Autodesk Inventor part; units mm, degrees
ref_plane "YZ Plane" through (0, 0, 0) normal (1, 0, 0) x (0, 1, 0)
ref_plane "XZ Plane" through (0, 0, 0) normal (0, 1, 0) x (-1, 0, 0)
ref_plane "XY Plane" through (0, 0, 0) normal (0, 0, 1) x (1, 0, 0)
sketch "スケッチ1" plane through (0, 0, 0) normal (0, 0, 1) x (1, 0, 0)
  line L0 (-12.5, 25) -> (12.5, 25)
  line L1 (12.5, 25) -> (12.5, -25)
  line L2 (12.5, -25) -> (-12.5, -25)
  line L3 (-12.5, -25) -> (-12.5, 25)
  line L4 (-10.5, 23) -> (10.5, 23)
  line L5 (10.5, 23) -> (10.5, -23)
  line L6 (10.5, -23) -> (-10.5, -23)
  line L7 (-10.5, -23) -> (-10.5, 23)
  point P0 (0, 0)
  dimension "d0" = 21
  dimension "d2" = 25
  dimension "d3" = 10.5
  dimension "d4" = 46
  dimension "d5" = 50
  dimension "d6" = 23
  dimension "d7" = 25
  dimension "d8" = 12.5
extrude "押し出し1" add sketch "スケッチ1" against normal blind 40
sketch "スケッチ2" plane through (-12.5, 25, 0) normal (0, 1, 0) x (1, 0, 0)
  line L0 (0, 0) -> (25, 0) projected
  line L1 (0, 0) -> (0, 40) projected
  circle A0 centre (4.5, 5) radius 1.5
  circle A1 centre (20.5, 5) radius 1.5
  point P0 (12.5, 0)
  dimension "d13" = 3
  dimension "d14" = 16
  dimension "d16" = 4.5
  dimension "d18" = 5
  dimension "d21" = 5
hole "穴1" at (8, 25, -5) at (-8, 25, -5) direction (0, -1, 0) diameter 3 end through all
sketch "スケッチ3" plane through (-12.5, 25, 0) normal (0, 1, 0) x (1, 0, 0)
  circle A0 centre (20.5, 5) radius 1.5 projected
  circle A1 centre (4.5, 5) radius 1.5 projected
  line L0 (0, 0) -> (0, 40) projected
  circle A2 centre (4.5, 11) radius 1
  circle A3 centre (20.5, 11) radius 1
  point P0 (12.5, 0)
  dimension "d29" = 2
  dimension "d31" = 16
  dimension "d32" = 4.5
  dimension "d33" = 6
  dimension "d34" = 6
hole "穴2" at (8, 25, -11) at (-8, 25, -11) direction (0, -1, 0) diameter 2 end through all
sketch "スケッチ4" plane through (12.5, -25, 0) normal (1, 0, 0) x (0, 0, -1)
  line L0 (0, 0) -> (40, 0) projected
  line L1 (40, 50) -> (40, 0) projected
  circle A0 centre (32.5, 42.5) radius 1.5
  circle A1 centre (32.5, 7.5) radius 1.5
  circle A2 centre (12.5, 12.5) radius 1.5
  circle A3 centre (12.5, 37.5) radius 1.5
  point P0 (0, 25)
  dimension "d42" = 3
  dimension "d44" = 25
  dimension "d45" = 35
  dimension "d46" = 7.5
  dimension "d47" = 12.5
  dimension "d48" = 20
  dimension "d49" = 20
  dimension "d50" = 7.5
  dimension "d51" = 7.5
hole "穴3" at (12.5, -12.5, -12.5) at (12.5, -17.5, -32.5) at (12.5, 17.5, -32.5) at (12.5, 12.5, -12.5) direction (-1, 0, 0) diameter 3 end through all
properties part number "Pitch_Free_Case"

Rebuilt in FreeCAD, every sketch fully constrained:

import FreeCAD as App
import Part
import Sketcher
from FreeCAD import Vector
Q = App.Units.Quantity

doc = App.newDocument("Part")
body = doc.addObject("PartDesign::Body", "Body")

# Sketch on XY plane
sketch1 = body.newObject("Sketcher::SketchObject", "Sketch")
sketch1.AttachmentSupport = (doc.getObject("XY_Plane"), [""])
sketch1.MapMode = "FlatFace"
sketch1.addGeometry(Part.LineSegment(Vector(12, 25, 0), Vector(-12, 25, 0)), False)
sketch1.addGeometry(Part.LineSegment(Vector(-12, 25, 0), Vector(-12, -25, 0)), False)
sketch1.addGeometry(Part.LineSegment(Vector(-12, -25, 0), Vector(12, -25, 0)), False)
sketch1.addGeometry(Part.LineSegment(Vector(12, -25, 0), Vector(12, 25, 0)), False)
sketch1.addGeometry(Part.LineSegment(Vector(-10, -23, 0), Vector(-10, 23, 0)), False)
sketch1.addGeometry(Part.LineSegment(Vector(-10, 23, 0), Vector(10, 23, 0)), False)
sketch1.addGeometry(Part.LineSegment(Vector(10, 23, 0), Vector(10, -23, 0)), False)
sketch1.addGeometry(Part.LineSegment(Vector(10, -23, 0), Vector(-10, -23, 0)), False)
sketch1.addConstraint(Sketcher.Constraint("Coincident", 0, 2, 1, 1))
sketch1.addConstraint(Sketcher.Constraint("Coincident", 1, 2, 2, 1))
sketch1.addConstraint(Sketcher.Constraint("Coincident", 2, 2, 3, 1))
sketch1.addConstraint(Sketcher.Constraint("Coincident", 3, 2, 0, 1))
sketch1.addConstraint(Sketcher.Constraint("Coincident", 4, 2, 5, 1))
sketch1.addConstraint(Sketcher.Constraint("Coincident", 5, 2, 6, 1))
sketch1.addConstraint(Sketcher.Constraint("Coincident", 6, 2, 7, 1))
sketch1.addConstraint(Sketcher.Constraint("Coincident", 7, 2, 4, 1))
sketch1.addConstraint(Sketcher.Constraint("Horizontal", 0))
sketch1.addConstraint(Sketcher.Constraint("Vertical", 1))
sketch1.addConstraint(Sketcher.Constraint("Horizontal", 2))
sketch1.addConstraint(Sketcher.Constraint("Vertical", 3))
sketch1.addConstraint(Sketcher.Constraint("Vertical", 4))
sketch1.addConstraint(Sketcher.Constraint("Horizontal", 5))
sketch1.addConstraint(Sketcher.Constraint("Vertical", 6))
sketch1.addConstraint(Sketcher.Constraint("Horizontal", 7))
sketch1.addConstraint(Sketcher.Constraint("Symmetric", 0, 2, 2, 2, -1, 1))
sketch1.addConstraint(Sketcher.Constraint("Symmetric", 4, 2, 6, 2, -1, 1))
sketch1.addConstraint(Sketcher.Constraint("DistanceX", 0, 2, 0, 1, Q("25 mm")))
sketch1.addConstraint(Sketcher.Constraint("DistanceX", 5, 1, 5, 2, Q("21 mm")))
sketch1.addConstraint(Sketcher.Constraint("DistanceY", 1, 2, 1, 1, Q("50 mm")))
sketch1.addConstraint(Sketcher.Constraint("DistanceY", 4, 1, 4, 2, Q("46 mm")))
pad1 = body.newObject("PartDesign::Pad", "Pad")
pad1.Profile = sketch1
pad1.Length = 40
pad1.Reversed = True

# Sketch on XZ plane
sketch2 = body.newObject("Sketcher::SketchObject", "Sketch001")
sketch2.AttachmentSupport = (doc.getObject("XZ_Plane"), [""])
sketch2.MapMode = "FlatFace"
sketch2.AttachmentOffset = App.Placement(Vector(0, 0, -25), App.Rotation())
sketch2.addGeometry(Part.Circle(Vector(8, -5, 0), Vector(0, 0, 1), 1.5), False)
sketch2.addGeometry(Part.Circle(Vector(-8, -5, 0), Vector(0, 0, 1), 1.5), False)
sketch2.addConstraint(Sketcher.Constraint("Equal", 0, 1))
sketch2.addConstraint(Sketcher.Constraint("Symmetric", 0, 3, 1, 3, -2))
sketch2.addConstraint(Sketcher.Constraint("Diameter", 0, Q("3 mm")))
sketch2.addConstraint(Sketcher.Constraint("DistanceX", -1, 1, 0, 3, Q("8 mm")))
sketch2.addConstraint(Sketcher.Constraint("DistanceY", 0, 3, -1, 1, Q("5 mm")))
doc.recompute()
hole = body.newObject("PartDesign::Hole", "Hole")
hole.Profile = sketch2
hole.ThreadType = "None"
hole.Diameter = 3
hole.DepthType = "ThroughAll"
hole.Reversed = True

# Sketch on XZ plane
sketch3 = body.newObject("Sketcher::SketchObject", "Sketch002")
sketch3.AttachmentSupport = (doc.getObject("XZ_Plane"), [""])
sketch3.MapMode = "FlatFace"
sketch3.AttachmentOffset = App.Placement(Vector(0, 0, -25), App.Rotation())
sketch3.addGeometry(Part.Circle(Vector(8, -11, 0), Vector(0, 0, 1), 1), False)
sketch3.addGeometry(Part.Circle(Vector(-8, -11, 0), Vector(0, 0, 1), 1), False)
sketch3.addConstraint(Sketcher.Constraint("Equal", 0, 1))
sketch3.addConstraint(Sketcher.Constraint("Symmetric", 0, 3, 1, 3, -2))
sketch3.addConstraint(Sketcher.Constraint("Diameter", 0, Q("2 mm")))
sketch3.addConstraint(Sketcher.Constraint("DistanceX", -1, 1, 0, 3, Q("8 mm")))
sketch3.addConstraint(Sketcher.Constraint("DistanceY", 0, 3, -1, 1, Q("11 mm")))
doc.recompute()
hole2 = body.newObject("PartDesign::Hole", "Hole001")
hole2.Profile = sketch3
hole2.ThreadType = "None"
hole2.Diameter = 2
hole2.DepthType = "ThroughAll"
hole2.Reversed = True

# Sketch on YZ plane
sketch4 = body.newObject("Sketcher::SketchObject", "Sketch003")
sketch4.AttachmentSupport = (doc.getObject("YZ_Plane"), [""])
sketch4.MapMode = "FlatFace"
sketch4.AttachmentOffset = App.Placement(Vector(0, 0, 12.5), App.Rotation())
sketch4.addGeometry(Part.Circle(Vector(-12.5, -12.5, 0), Vector(0, 0, 1), 1.5), False)
sketch4.addGeometry(Part.Circle(Vector(-17.5, -32.5, 0), Vector(0, 0, 1), 1.5), False)
sketch4.addGeometry(Part.Circle(Vector(17.5, -32.5, 0), Vector(0, 0, 1), 1.5), False)
sketch4.addGeometry(Part.Circle(Vector(12.5, -12.5, 0), Vector(0, 0, 1), 1.5), False)
sketch4.addConstraint(Sketcher.Constraint("Equal", 0, 1))
sketch4.addConstraint(Sketcher.Constraint("Equal", 1, 2))
sketch4.addConstraint(Sketcher.Constraint("Equal", 2, 3))
sketch4.addConstraint(Sketcher.Constraint("Symmetric", 1, 3, 2, 3, -2))
sketch4.addConstraint(Sketcher.Constraint("Symmetric", 0, 3, 3, 3, -2))
sketch4.addConstraint(Sketcher.Constraint("Diameter", 0, Q("3 mm")))
sketch4.addConstraint(Sketcher.Constraint("DistanceX", 1, 3, 0, 3, Q("5 mm")))
sketch4.addConstraint(Sketcher.Constraint("DistanceY", 1, 3, 0, 3, Q("20 mm")))
sketch4.addConstraint(Sketcher.Constraint("DistanceX", 1, 3, 2, 3, Q("35 mm")))
sketch4.addConstraint(Sketcher.Constraint("DistanceY", 0, 3, -1, 1, Q("12.5 mm")))
doc.recompute()
hole3 = body.newObject("PartDesign::Hole", "Hole002")
hole3.Profile = sketch4
hole3.ThreadType = "None"
hole3.Diameter = 3
hole3.DepthType = "ThroughAll"

doc.recompute()
